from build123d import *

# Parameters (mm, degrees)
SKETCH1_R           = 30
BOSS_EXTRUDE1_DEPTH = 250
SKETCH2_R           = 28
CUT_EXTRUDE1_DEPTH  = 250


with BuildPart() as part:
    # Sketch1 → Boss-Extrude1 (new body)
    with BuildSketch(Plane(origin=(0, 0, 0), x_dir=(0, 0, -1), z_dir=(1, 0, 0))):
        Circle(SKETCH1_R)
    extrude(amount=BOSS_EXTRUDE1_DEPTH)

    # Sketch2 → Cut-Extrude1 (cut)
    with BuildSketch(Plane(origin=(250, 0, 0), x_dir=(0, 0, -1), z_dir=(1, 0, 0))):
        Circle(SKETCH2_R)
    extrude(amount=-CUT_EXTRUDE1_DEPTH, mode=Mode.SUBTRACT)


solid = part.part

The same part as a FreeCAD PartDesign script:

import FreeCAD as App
import Part
import Sketcher

doc = App.newDocument("Part")
params = doc.addObject("Spreadsheet::Sheet", "Params")
for row, (alias, value) in enumerate([
    ("sketch1_diameter", "60 mm"),
    ("pad1_length", "250 mm"),
    ("sketch2_diameter", "56 mm"),
    ("pocket1_length", "250 mm"),
], start=1):
    params.set(f"A{row}", alias)
    params.set(f"B{row}", "=" + value)
    params.setAlias(f"B{row}", alias)

body = doc.addObject("PartDesign::Body", "Body")

# Sketch on YZ plane
sketch1 = doc.addObject("Sketcher::SketchObject", "Sketch")
body.addObject(sketch1)
sketch1.AttachmentSupport = (doc.YZ_Plane, [""])
sketch1.MapMode = "FlatFace"
sketch1.addGeometry(Part.Circle(App.Vector(0, 0, 0), App.Vector(0, 0, 1), 30), False)
sketch1.addConstraint([
    Sketcher.Constraint("Coincident", 0, 3, -1, 1),
    Sketcher.Constraint("Diameter", 0, 60.0),
])
sketch1.setExpression("Constraints[1]", "Params.sketch1_diameter")
pad1 = doc.addObject("PartDesign::Pad", "Pad")
body.addObject(pad1)
pad1.Profile = sketch1
pad1.setExpression("Length", "Params.pad1_length")

# Sketch on YZ plane
sketch2 = doc.addObject("Sketcher::SketchObject", "Sketch001")
body.addObject(sketch2)
sketch2.AttachmentSupport = (doc.YZ_Plane, [""])
sketch2.MapMode = "FlatFace"
sketch2.AttachmentOffset = App.Placement(App.Vector(0, 0, 250), App.Rotation())
sketch2.addGeometry(Part.Circle(App.Vector(0, 0, 0), App.Vector(0, 0, 1), 28), False)
sketch2.addConstraint([
    Sketcher.Constraint("Coincident", 0, 3, -1, 1),
    Sketcher.Constraint("Diameter", 0, 56.0),
])
sketch2.setExpression("Constraints[1]", "Params.sketch2_diameter")
pocket1 = doc.addObject("PartDesign::Pocket", "Pocket")
body.addObject(pocket1)
pocket1.Profile = sketch2
pocket1.setExpression("Length", "Params.pocket1_length")

doc.recompute()
